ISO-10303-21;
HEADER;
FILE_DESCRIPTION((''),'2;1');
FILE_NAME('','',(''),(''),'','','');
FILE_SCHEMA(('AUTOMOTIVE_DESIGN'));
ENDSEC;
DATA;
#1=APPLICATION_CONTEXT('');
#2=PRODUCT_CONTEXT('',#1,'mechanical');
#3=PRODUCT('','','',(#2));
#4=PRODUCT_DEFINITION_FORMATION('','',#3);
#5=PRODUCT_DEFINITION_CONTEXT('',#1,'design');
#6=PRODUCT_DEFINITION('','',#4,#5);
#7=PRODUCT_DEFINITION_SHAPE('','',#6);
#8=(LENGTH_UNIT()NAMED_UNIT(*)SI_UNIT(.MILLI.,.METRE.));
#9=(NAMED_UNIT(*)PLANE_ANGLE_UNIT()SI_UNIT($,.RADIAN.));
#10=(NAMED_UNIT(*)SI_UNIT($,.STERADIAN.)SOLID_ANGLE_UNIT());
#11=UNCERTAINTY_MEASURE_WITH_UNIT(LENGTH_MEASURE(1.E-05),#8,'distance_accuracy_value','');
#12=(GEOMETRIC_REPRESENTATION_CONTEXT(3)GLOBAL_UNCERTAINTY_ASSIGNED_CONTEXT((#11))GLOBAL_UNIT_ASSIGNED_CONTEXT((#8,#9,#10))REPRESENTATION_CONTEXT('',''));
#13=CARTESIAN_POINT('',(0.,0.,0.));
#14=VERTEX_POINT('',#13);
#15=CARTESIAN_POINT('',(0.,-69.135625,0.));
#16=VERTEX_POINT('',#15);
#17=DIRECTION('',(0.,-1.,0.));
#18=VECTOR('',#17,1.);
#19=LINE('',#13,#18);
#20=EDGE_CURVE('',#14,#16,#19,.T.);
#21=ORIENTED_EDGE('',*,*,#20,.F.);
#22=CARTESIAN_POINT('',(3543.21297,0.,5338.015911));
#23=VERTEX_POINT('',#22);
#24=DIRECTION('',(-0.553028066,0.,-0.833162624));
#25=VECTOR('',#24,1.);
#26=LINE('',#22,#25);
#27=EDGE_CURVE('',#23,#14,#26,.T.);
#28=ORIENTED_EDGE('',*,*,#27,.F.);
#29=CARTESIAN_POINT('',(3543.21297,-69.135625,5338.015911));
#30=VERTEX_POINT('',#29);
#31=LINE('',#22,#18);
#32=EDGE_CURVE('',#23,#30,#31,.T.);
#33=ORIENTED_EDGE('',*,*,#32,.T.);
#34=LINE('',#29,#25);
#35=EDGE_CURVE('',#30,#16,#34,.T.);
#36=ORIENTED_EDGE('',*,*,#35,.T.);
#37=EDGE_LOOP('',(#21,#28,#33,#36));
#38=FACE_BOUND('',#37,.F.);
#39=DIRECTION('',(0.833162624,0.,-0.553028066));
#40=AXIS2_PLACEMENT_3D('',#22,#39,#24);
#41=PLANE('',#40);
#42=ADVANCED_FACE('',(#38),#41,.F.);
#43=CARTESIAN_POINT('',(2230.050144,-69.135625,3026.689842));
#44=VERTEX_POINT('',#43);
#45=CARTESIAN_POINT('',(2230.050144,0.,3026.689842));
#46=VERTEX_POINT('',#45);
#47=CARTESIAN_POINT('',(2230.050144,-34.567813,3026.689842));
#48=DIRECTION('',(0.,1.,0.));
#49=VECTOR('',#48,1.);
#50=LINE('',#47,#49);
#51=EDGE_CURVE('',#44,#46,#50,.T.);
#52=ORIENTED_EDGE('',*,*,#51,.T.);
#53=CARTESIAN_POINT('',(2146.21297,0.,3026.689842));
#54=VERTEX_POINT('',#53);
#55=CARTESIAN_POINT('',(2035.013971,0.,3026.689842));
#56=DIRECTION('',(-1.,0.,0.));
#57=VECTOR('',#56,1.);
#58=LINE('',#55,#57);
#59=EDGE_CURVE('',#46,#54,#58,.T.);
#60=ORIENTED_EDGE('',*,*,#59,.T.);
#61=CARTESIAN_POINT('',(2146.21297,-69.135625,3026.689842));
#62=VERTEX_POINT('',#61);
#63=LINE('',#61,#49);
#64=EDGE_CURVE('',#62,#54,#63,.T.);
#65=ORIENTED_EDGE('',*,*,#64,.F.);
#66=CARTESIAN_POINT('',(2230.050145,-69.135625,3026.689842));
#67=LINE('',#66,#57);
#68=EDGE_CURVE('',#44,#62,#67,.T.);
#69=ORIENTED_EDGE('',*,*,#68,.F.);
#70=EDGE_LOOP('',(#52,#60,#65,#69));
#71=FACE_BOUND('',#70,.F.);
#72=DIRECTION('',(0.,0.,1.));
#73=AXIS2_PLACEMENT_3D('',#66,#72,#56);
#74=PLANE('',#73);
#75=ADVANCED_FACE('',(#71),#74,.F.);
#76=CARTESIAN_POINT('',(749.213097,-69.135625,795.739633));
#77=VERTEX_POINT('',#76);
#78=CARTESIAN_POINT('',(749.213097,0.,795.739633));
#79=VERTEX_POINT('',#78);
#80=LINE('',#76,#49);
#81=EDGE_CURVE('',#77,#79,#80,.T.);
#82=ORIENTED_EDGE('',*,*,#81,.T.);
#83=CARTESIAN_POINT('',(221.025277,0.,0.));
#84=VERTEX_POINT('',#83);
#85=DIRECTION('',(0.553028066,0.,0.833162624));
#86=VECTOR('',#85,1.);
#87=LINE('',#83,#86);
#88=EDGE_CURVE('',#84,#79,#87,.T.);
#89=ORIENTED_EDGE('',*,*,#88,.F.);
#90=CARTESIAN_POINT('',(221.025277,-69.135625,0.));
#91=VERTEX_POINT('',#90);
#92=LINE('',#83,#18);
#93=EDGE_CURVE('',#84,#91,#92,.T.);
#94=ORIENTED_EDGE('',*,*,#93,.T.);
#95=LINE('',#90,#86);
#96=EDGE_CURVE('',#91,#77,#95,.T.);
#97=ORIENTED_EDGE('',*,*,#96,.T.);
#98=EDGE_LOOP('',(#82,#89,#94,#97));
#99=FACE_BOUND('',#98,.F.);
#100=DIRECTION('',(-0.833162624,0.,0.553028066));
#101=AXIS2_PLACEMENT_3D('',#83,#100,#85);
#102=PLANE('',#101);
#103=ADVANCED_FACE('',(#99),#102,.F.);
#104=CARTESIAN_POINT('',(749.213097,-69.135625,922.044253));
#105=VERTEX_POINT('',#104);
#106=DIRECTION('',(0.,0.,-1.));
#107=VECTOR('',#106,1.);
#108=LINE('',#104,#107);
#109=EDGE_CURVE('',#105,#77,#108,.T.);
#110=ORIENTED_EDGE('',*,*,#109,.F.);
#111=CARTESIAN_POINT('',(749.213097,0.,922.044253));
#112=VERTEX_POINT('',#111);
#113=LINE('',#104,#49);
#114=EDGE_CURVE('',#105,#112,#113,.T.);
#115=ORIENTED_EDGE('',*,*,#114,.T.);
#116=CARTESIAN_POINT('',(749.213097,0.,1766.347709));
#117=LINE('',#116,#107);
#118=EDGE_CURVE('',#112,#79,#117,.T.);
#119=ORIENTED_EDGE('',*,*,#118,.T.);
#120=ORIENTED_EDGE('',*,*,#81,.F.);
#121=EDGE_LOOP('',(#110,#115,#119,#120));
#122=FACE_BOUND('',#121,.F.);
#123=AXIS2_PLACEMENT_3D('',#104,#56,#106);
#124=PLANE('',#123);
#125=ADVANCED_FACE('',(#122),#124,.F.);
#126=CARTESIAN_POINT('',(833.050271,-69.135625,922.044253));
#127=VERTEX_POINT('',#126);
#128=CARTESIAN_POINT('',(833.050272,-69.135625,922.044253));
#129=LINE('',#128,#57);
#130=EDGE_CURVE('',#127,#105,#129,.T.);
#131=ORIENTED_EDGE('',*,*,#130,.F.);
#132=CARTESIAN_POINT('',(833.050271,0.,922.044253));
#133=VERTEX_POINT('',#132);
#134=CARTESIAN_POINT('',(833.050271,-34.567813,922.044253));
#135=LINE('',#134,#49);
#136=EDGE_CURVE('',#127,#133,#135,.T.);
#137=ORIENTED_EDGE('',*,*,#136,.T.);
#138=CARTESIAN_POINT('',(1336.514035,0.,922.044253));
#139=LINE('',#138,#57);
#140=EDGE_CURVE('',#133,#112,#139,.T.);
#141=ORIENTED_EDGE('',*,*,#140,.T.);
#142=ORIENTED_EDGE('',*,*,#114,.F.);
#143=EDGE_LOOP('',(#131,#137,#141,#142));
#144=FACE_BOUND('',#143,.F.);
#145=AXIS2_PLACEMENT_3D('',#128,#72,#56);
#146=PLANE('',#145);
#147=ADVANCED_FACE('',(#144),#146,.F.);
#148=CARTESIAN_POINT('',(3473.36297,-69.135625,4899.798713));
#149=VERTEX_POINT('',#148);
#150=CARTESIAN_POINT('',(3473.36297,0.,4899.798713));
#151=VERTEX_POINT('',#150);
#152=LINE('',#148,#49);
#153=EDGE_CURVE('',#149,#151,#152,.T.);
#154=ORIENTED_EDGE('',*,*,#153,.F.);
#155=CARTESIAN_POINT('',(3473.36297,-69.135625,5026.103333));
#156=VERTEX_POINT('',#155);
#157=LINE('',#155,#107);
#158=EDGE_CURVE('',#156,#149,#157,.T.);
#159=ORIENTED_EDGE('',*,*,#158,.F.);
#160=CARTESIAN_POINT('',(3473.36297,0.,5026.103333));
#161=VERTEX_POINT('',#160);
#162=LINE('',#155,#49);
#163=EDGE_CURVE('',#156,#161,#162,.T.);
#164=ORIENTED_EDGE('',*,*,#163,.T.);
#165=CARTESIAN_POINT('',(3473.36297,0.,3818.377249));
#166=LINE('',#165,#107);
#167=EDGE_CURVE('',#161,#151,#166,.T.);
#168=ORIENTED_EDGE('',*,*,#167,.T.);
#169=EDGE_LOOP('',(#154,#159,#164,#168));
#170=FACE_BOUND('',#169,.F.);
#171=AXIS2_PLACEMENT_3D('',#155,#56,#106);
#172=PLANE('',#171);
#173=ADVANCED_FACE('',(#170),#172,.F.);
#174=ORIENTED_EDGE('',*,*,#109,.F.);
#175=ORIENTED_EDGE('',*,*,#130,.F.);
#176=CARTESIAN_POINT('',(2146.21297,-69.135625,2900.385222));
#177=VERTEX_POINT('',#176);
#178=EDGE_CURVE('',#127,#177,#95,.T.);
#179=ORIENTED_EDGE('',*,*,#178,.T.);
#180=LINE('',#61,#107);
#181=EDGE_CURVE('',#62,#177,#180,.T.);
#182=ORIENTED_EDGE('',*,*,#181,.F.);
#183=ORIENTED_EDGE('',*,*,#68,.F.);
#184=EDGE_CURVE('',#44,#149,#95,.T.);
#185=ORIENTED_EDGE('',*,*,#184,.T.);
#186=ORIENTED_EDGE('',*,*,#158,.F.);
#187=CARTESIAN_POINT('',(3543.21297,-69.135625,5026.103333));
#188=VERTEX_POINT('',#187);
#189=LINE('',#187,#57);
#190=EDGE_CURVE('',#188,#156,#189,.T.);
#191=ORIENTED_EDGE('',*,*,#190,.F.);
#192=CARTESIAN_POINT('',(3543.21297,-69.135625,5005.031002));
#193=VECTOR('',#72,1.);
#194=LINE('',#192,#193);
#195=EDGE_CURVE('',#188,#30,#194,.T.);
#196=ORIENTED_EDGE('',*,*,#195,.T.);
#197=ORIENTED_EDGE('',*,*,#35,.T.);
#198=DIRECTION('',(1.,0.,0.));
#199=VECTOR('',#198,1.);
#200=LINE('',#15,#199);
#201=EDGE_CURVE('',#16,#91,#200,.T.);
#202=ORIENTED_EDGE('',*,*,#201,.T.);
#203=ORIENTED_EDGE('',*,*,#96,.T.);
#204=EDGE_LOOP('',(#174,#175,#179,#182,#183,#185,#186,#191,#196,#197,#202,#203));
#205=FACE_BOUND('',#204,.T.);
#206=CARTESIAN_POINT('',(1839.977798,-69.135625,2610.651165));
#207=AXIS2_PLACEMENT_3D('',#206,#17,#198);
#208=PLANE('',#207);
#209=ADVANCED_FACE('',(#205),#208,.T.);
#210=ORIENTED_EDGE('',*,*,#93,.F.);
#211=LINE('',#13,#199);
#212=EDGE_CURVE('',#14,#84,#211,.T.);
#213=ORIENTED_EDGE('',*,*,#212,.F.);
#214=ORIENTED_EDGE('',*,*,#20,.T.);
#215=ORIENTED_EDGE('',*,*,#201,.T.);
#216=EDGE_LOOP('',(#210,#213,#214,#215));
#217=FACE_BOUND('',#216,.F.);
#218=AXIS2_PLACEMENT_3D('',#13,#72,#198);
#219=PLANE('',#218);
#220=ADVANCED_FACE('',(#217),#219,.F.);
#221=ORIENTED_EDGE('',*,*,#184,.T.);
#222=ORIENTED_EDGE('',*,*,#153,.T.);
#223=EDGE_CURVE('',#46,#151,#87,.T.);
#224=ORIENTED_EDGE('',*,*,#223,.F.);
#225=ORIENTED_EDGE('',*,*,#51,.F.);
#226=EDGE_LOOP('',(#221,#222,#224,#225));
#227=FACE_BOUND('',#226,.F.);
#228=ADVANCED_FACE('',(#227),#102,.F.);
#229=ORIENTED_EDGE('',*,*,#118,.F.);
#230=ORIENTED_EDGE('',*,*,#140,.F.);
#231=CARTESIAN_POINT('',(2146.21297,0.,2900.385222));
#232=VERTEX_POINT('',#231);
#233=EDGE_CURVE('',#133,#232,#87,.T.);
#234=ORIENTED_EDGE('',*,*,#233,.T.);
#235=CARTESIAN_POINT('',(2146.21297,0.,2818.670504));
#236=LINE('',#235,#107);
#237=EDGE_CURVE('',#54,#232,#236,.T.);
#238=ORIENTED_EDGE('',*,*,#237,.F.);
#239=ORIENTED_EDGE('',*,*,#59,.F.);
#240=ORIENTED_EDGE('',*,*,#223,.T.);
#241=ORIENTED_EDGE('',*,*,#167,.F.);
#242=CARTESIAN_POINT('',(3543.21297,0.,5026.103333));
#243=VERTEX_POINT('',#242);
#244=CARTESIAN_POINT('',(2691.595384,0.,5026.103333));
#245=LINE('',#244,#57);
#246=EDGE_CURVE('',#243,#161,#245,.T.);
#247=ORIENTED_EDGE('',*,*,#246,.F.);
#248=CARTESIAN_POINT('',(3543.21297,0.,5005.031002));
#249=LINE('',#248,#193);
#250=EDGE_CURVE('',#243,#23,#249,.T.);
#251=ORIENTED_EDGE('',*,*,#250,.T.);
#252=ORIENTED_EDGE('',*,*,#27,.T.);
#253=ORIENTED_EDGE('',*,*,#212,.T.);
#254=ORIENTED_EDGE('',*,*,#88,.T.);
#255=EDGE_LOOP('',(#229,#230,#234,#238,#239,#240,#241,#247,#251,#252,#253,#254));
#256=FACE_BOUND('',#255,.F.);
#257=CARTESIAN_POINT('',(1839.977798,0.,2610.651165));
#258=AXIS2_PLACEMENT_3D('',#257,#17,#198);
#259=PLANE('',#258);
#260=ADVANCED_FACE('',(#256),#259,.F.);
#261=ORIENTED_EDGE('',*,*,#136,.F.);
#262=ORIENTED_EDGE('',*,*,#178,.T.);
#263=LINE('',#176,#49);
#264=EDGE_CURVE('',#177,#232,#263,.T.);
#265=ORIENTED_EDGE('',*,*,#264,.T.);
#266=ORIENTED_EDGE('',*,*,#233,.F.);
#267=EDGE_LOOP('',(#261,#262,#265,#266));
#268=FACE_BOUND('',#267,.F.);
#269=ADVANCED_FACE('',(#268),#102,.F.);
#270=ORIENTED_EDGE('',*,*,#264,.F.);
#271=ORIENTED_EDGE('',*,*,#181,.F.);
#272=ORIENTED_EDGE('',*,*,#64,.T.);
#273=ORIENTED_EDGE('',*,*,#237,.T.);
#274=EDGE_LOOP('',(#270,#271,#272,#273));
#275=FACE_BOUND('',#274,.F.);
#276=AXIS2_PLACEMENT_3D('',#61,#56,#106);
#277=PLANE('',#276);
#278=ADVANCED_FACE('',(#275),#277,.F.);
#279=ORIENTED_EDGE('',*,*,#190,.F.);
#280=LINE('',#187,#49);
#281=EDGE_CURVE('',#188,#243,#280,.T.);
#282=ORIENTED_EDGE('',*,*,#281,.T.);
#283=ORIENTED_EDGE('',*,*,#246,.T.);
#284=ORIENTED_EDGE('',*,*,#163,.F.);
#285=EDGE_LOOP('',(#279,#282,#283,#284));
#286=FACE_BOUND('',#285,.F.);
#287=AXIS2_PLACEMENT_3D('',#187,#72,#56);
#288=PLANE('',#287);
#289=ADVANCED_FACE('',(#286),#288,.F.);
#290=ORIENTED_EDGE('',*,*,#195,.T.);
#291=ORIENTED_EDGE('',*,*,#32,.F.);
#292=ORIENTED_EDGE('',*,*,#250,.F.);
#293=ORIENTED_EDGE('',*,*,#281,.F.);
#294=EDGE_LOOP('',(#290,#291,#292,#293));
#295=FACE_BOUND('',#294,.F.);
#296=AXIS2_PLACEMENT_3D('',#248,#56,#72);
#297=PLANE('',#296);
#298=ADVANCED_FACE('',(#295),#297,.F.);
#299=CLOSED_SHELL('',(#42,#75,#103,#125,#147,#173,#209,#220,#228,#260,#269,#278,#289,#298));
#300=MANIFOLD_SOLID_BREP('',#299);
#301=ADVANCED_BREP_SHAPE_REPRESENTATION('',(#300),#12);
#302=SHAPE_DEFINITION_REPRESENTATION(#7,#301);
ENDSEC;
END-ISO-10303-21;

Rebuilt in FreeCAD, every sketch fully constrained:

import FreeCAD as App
import Part
import Sketcher

V = App.Vector
Q = App.Units.Quantity


def add_polygon(sketch, points):
    """Adds a closed chain of lines whose ends are joined by coincident constraints."""
    first, n = sketch.GeometryCount, len(points)
    for a, b in zip(points, points[1:] + points[:1]):
        sketch.addGeometry(Part.LineSegment(App.Vector(*a, 0), App.Vector(*b, 0)), False)
    for i in range(n):
        sketch.addConstraint(Sketcher.Constraint("Coincident", first + i, 2, first + (i + 1) % n, 1))

doc = App.newDocument("Part")
body = doc.addObject("PartDesign::Body", "Body")

# Sketch on XZ plane
sketch1 = body.newObject("Sketcher::SketchObject", "Sketch")
sketch1.AttachmentSupport = (doc.getObject("XZ_Plane"), [""])
sketch1.MapMode = "FlatFace"
add_polygon(sketch1, [(3543, 5338), (0, 0), (221, 0), (3543, 5005)])  # lines 0-3
sketch1.addConstraint(Sketcher.Constraint("Horizontal", 1))
sketch1.addConstraint(Sketcher.Constraint("Vertical", 3))
sketch1.addConstraint(Sketcher.Constraint("Coincident", 0, 2, -1, 1))
sketch1.addConstraint(Sketcher.Constraint("Parallel", 0, 2))
sketch1.addConstraint(Sketcher.Constraint("Distance", 0, Q("252.2414 in")))
sketch1.addConstraint(Sketcher.Constraint("Distance", 2, 6007.267798))
sketch1.addConstraint(Sketcher.Constraint("DistanceY", 3, 1, 3, 2, 332.984909))
pad1 = body.newObject("PartDesign::Pad", "Pad")
pad1.Profile = sketch1
pad1.Length = 69.135625

# Sketch on XZ plane
sketch2 = body.newObject("Sketcher::SketchObject", "Sketch001")
sketch2.AttachmentSupport = (doc.getObject("XZ_Plane"), [""])
sketch2.MapMode = "FlatFace"
sketch2.AttachmentOffset = App.Placement(V(0, 0, 69.135625), App.Rotation())
add_polygon(sketch2, [(3543, 5026), (3473, 5026), (3473, 4900), (3543, 5005)])  # lines 0-3
add_polygon(sketch2, [(2146, 2900), (2230, 3027), (2146, 3027)])  # lines 4-6
add_polygon(sketch2, [(749, 796), (833, 922), (749, 922)])  # lines 7-9
sketch2.addConstraint(Sketcher.Constraint("Horizontal", 0))
sketch2.addConstraint(Sketcher.Constraint("Vertical", 1))
sketch2.addConstraint(Sketcher.Constraint("Vertical", 3))
sketch2.addConstraint(Sketcher.Constraint("Horizontal", 5))
sketch2.addConstraint(Sketcher.Constraint("Vertical", 6))
sketch2.addConstraint(Sketcher.Constraint("Horizontal", 8))
sketch2.addConstraint(Sketcher.Constraint("Vertical", 9))
sketch2.addConstraint(Sketcher.Constraint("Parallel", 2, 4))
sketch2.addConstraint(Sketcher.Constraint("Parallel", 4, 7))
sketch2.addConstraint(Sketcher.Constraint("Equal", 5, 8))
sketch2.addConstraint(Sketcher.Constraint("Equal", 1, 6))
sketch2.addConstraint(Sketcher.Constraint("DistanceX", 5, 2, 2, 2, Q("55 in")))
sketch2.addConstraint(Sketcher.Constraint("DistanceX", 0, 2, 0, 1, Q("2.75 in")))
sketch2.addConstraint(Sketcher.Constraint("Distance", 4, 151.596599))
sketch2.addConstraint(Sketcher.Constraint("DistanceY", 1, 2, 1, 1, 126.30462))
sketch2.addConstraint(Sketcher.Constraint("DistanceY", -1, 1, 2, 2, 5005.031002))
sketch2.addConstraint(Sketcher.Constraint("DistanceX", 7, 2, 6, 2, 1313.162698))
sketch2.addConstraint(Sketcher.Constraint("DistanceX", -1, 1, 0, 2, 3473.36297))
sketch2.addConstraint(Sketcher.Constraint("DistanceY", -1, 1, 6, 2, 2900.385222))
sketch2.addConstraint(Sketcher.Constraint("DistanceY", 7, 2, 6, 2, 1978.340969))
pocket1 = body.newObject("PartDesign::Pocket", "Pocket")
pocket1.Profile = sketch2
pocket1.Type = "ThroughAll"

doc.recompute()
